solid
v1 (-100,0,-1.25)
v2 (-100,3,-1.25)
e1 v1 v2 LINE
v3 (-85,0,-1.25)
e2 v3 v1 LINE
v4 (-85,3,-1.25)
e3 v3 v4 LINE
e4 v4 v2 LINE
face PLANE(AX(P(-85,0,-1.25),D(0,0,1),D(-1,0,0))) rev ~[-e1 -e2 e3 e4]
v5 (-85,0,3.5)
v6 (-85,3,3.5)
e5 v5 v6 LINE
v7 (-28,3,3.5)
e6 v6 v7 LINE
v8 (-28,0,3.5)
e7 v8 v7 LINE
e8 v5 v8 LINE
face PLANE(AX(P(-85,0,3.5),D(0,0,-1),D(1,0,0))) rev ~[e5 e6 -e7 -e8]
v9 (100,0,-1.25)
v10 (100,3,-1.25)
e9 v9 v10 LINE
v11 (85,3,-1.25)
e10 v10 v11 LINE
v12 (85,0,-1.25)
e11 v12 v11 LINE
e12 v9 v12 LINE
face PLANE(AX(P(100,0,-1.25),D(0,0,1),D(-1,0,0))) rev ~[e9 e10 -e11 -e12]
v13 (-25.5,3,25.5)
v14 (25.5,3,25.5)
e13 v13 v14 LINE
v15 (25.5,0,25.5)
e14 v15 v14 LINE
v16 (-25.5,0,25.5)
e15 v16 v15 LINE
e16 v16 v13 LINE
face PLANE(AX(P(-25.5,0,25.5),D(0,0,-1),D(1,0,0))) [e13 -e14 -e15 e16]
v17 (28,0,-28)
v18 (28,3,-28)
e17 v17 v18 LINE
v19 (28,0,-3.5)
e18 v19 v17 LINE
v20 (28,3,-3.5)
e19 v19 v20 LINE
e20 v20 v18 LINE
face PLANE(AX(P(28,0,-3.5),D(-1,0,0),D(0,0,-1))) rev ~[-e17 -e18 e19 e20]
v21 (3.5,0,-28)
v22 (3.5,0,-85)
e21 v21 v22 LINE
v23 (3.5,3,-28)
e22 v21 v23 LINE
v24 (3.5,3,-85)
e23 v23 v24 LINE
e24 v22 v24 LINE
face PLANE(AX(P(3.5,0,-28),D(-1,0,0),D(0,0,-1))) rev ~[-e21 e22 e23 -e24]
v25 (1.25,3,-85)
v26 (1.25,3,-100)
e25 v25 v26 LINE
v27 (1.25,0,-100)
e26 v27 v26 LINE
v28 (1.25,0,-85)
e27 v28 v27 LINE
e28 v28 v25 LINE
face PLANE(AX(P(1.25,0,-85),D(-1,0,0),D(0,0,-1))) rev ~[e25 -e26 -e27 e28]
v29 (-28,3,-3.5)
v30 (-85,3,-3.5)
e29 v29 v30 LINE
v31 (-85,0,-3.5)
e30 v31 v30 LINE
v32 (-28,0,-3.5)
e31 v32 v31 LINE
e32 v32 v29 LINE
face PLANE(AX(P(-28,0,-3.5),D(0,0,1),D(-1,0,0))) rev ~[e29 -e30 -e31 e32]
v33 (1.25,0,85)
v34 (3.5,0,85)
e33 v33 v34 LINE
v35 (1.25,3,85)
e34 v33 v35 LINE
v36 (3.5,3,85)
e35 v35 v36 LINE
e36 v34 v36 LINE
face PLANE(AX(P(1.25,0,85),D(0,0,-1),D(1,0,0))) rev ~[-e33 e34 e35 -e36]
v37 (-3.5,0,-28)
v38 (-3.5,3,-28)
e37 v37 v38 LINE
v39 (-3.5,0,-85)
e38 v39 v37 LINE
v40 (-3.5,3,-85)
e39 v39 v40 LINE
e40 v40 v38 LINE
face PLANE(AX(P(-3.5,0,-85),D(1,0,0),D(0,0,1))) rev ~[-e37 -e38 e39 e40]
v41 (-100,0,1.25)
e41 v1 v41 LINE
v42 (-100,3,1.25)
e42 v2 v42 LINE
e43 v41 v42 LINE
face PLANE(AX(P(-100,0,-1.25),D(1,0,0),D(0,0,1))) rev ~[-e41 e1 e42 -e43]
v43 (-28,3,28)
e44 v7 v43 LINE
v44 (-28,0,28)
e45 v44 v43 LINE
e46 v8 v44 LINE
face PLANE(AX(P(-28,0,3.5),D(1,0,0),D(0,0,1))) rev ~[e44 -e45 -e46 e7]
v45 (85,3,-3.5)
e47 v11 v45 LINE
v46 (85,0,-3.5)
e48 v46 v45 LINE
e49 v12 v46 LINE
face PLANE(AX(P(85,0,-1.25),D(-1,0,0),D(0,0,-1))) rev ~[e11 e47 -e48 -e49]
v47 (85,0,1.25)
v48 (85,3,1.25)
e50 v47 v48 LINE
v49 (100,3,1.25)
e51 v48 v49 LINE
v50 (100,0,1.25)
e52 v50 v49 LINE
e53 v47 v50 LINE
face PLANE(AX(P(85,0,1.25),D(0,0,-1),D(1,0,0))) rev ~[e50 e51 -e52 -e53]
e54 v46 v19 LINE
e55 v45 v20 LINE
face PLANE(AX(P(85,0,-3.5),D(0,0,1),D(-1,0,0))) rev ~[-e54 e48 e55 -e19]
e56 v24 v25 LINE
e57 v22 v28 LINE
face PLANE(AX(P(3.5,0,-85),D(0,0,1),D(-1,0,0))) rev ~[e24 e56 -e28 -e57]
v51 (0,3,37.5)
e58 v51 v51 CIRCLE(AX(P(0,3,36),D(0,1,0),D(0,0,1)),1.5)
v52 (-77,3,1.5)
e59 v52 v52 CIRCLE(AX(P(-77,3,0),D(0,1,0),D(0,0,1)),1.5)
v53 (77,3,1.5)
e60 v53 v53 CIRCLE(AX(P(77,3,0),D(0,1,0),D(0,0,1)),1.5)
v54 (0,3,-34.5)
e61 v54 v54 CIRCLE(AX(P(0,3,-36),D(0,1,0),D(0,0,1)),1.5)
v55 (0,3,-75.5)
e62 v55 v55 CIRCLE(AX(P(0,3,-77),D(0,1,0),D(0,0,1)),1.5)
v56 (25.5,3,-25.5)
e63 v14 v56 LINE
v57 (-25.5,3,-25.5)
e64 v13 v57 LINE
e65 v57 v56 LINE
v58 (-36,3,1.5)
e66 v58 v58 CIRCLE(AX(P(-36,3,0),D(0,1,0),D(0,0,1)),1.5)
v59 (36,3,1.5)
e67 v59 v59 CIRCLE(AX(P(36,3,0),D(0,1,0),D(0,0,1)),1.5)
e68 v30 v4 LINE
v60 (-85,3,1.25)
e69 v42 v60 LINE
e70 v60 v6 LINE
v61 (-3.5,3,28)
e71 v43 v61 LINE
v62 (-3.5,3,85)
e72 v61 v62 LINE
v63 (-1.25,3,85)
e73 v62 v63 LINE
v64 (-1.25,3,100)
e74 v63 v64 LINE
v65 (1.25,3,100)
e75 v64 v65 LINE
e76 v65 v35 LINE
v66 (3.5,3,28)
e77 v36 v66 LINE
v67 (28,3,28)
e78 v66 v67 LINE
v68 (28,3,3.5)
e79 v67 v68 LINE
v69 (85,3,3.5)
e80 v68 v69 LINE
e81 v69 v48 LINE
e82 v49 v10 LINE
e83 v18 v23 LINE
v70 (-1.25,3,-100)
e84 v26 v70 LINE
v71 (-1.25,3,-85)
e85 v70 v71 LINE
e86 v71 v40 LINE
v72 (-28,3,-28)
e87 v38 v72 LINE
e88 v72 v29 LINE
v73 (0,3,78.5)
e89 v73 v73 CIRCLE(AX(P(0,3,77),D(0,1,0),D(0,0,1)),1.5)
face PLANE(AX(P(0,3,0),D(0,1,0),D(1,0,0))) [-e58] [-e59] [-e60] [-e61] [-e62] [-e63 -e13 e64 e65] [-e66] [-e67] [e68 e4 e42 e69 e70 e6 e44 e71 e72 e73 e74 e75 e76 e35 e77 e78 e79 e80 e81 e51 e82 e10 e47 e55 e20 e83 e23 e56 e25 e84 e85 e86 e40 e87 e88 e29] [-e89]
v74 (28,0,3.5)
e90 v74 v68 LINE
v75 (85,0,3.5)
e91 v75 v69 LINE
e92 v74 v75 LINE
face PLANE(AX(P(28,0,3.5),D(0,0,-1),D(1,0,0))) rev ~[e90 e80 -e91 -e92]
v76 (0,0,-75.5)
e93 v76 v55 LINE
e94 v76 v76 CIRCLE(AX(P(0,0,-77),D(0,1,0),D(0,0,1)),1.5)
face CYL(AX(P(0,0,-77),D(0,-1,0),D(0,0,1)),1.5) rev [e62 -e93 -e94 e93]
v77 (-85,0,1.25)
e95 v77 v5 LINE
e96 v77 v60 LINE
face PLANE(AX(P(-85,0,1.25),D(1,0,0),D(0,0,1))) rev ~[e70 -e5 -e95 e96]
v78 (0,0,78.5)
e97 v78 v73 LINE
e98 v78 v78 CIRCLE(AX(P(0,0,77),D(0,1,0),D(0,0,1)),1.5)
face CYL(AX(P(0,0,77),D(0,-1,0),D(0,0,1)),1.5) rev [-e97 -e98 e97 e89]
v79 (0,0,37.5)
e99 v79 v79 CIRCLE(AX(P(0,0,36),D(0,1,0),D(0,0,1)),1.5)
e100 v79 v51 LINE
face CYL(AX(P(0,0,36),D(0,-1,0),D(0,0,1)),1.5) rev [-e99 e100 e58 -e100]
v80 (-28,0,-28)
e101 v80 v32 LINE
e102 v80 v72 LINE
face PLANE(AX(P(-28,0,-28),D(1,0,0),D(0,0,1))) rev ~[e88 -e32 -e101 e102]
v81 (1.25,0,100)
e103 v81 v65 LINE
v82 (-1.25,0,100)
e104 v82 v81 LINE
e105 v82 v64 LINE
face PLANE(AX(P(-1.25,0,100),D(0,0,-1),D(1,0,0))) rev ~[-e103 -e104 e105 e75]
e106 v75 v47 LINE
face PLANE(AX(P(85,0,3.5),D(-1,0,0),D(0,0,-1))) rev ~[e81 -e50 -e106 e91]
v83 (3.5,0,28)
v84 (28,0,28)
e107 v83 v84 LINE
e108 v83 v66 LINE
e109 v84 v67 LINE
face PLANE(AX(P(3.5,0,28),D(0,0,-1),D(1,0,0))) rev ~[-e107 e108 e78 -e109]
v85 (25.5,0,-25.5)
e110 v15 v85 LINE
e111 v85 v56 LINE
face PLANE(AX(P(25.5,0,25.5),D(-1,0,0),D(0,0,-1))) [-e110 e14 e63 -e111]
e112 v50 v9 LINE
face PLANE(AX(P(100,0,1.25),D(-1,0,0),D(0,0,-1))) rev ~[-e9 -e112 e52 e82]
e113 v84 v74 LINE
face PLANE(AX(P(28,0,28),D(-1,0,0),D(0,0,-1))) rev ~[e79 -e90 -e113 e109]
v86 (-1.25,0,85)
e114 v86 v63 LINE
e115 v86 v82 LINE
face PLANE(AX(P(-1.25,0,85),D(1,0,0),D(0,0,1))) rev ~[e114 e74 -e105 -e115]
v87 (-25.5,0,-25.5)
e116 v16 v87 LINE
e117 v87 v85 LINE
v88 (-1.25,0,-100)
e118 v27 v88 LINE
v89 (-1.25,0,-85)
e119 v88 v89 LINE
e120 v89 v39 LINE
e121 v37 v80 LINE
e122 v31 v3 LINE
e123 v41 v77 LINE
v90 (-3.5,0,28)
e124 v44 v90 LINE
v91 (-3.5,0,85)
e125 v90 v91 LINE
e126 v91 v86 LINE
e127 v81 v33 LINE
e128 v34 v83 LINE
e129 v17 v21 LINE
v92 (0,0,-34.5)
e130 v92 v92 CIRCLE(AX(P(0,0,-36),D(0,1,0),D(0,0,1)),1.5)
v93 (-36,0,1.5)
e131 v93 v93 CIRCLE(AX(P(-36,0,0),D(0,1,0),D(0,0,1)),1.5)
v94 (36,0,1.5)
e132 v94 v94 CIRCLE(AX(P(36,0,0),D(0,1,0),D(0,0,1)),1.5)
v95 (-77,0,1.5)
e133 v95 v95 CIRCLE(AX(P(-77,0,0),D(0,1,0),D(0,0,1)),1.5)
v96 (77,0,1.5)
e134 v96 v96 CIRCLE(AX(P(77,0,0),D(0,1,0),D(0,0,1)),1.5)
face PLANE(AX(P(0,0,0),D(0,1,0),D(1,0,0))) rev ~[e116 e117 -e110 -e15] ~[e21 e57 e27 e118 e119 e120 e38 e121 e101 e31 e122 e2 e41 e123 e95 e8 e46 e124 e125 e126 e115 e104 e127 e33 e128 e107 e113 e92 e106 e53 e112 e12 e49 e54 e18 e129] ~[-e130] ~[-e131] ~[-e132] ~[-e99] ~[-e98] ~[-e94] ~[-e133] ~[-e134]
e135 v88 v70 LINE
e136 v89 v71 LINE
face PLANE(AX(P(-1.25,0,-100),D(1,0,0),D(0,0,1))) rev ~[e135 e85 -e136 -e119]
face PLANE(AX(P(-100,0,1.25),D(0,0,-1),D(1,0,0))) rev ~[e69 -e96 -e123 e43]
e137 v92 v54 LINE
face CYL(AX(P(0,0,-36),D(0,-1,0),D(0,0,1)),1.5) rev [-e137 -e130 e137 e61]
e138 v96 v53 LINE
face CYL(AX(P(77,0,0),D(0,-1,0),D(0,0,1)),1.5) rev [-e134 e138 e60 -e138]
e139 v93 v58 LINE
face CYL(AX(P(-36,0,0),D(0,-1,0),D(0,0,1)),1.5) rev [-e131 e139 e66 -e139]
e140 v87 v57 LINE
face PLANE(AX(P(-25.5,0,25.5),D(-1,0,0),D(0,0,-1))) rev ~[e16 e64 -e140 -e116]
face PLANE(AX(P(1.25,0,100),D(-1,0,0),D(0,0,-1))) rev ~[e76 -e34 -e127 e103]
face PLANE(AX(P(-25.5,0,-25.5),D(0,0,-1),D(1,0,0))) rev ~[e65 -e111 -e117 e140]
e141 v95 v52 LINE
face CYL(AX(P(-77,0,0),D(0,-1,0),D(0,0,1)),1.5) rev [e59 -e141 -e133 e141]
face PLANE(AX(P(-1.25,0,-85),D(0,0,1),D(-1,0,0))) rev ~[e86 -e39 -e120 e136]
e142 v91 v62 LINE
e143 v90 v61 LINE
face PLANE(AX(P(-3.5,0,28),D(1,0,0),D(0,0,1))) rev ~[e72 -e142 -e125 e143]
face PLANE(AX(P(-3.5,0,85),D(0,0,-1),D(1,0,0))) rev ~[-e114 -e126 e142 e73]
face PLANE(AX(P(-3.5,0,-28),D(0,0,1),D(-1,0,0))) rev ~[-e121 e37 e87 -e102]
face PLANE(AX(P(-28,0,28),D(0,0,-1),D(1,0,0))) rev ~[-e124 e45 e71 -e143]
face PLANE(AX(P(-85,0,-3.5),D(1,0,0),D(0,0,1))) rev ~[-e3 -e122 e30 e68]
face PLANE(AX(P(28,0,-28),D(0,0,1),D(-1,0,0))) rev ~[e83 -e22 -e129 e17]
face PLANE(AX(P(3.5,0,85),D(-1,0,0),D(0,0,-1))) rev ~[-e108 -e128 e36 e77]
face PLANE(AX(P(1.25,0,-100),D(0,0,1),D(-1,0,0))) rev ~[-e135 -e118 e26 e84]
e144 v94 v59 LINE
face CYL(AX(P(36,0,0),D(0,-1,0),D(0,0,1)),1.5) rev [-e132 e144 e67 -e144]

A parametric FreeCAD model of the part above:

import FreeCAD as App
import Part
import Sketcher

V = App.Vector
Q = App.Units.Quantity

doc = App.newDocument("Part")
body = doc.addObject("PartDesign::Body", "Body")

# Sketch on XZ plane
sketch1 = body.newObject("Sketcher::SketchObject", "Sketch")
sketch1.AttachmentSupport = (doc.getObject("XZ_Plane"), [""])
sketch1.MapMode = "FlatFace"
sketch1.addGeometry([
    Part.LineSegment(V(85, -1.2, 0), V(85, -3.5, 0)),  # 0
    Part.LineSegment(V(85, -3.5, 0), V(28, -3.5, 0)),  # 1
    Part.LineSegment(V(28, -3.5, 0), V(28, -28, 0)),  # 2
    Part.LineSegment(V(28, -28, 0), V(3.5, -28, 0)),  # 3
    Part.LineSegment(V(3.5, -28, 0), V(3.5, -85, 0)),  # 4
    Part.LineSegment(V(3.5, -85, 0), V(1.2, -85, 0)),  # 5
    Part.LineSegment(V(1.2, -85, 0), V(1.2, -100, 0)),  # 6
    Part.LineSegment(V(1.2, -100, 0), V(-1.2, -100, 0)),  # 7
    Part.LineSegment(V(-1.2, -100, 0), V(-1.2, -85, 0)),  # 8
    Part.LineSegment(V(-1.2, -85, 0), V(-3.5, -85, 0)),  # 9
    Part.LineSegment(V(-3.5, -85, 0), V(-3.5, -28, 0)),  # 10
    Part.LineSegment(V(-3.5, -28, 0), V(-28, -28, 0)),  # 11
    Part.LineSegment(V(-28, -28, 0), V(-28, -3.5, 0)),  # 12
    Part.LineSegment(V(-28, -3.5, 0), V(-85, -3.5, 0)),  # 13
    Part.LineSegment(V(-85, -3.5, 0), V(-85, -1.2, 0)),  # 14
    Part.LineSegment(V(-85, -1.2, 0), V(-100, -1.2, 0)),  # 15
    Part.LineSegment(V(-100, -1.2, 0), V(-100, 1.2, 0)),  # 16
    Part.LineSegment(V(-100, 1.2, 0), V(-85, 1.2, 0)),  # 17
    Part.LineSegment(V(-85, 1.2, 0), V(-85, 3.5, 0)),  # 18
    Part.LineSegment(V(-85, 3.5, 0), V(-28, 3.5, 0)),  # 19
    Part.LineSegment(V(-28, 3.5, 0), V(-28, 28, 0)),  # 20
    Part.LineSegment(V(-28, 28, 0), V(-3.5, 28, 0)),  # 21
    Part.LineSegment(V(-3.5, 28, 0), V(-3.5, 85, 0)),  # 22
    Part.LineSegment(V(-3.5, 85, 0), V(-1.2, 85, 0)),  # 23
    Part.LineSegment(V(-1.2, 85, 0), V(-1.2, 100, 0)),  # 24
    Part.LineSegment(V(-1.2, 100, 0), V(1.2, 100, 0)),  # 25
    Part.LineSegment(V(1.2, 100, 0), V(1.2, 85, 0)),  # 26
    Part.LineSegment(V(1.2, 85, 0), V(3.5, 85, 0)),  # 27
    Part.LineSegment(V(3.5, 85, 0), V(3.5, 28, 0)),  # 28
    Part.LineSegment(V(3.5, 28, 0), V(28, 28, 0)),  # 29
    Part.LineSegment(V(28, 28, 0), V(28, 3.5, 0)),  # 30
    Part.LineSegment(V(28, 3.5, 0), V(85, 3.5, 0)),  # 31
    Part.LineSegment(V(85, 3.5, 0), V(85, 1.2, 0)),  # 32
    Part.LineSegment(V(85, 1.2, 0), V(100, 1.2, 0)),  # 33
    Part.LineSegment(V(100, 1.2, 0), V(100, -1.2, 0)),  # 34
    Part.LineSegment(V(100, -1.2, 0), V(85, -1.2, 0)),  # 35
    Part.Circle(V(0, 77, 0), V(0, 0, 1), 1.5),  # 36
    Part.Circle(V(0, 36, 0), V(0, 0, 1), 1.5),  # 37
    Part.Circle(V(-77, 0, 0), V(0, 0, 1), 1.5),  # 38
    Part.Circle(V(-36, 0, 0), V(0, 0, 1), 1.5),  # 39
    Part.LineSegment(V(25.5, 25.5, 0), V(-25.5, 25.5, 0)),  # 40
    Part.LineSegment(V(-25.5, 25.5, 0), V(-25.5, -25.5, 0)),  # 41
    Part.LineSegment(V(-25.5, -25.5, 0), V(25.5, -25.5, 0)),  # 42
    Part.LineSegment(V(25.5, -25.5, 0), V(25.5, 25.5, 0)),  # 43
    Part.Circle(V(36, 0, 0), V(0, 0, 1), 1.5),  # 44
    Part.Circle(V(0, -36, 0), V(0, 0, 1), 1.5),  # 45
    Part.Circle(V(77, 0, 0), V(0, 0, 1), 1.5),  # 46
    Part.Circle(V(0, -77, 0), V(0, 0, 1), 1.5),  # 47
], False)
sketch1.addConstraint([
    Sketcher.Constraint("Coincident", 0, 2, 1, 1),
    Sketcher.Constraint("Coincident", 1, 2, 2, 1),
    Sketcher.Constraint("Coincident", 2, 2, 3, 1),
    Sketcher.Constraint("Coincident", 3, 2, 4, 1),
    Sketcher.Constraint("Coincident", 4, 2, 5, 1),
    Sketcher.Constraint("Coincident", 5, 2, 6, 1),
    Sketcher.Constraint("Coincident", 6, 2, 7, 1),
    Sketcher.Constraint("Coincident", 7, 2, 8, 1),
    Sketcher.Constraint("Coincident", 8, 2, 9, 1),
    Sketcher.Constraint("Coincident", 9, 2, 10, 1),
    Sketcher.Constraint("Coincident", 10, 2, 11, 1),
    Sketcher.Constraint("Coincident", 11, 2, 12, 1),
    Sketcher.Constraint("Coincident", 12, 2, 13, 1),
    Sketcher.Constraint("Coincident", 13, 2, 14, 1),
    Sketcher.Constraint("Coincident", 14, 2, 15, 1),
    Sketcher.Constraint("Coincident", 15, 2, 16, 1),
    Sketcher.Constraint("Coincident", 16, 2, 17, 1),
    Sketcher.Constraint("Coincident", 17, 2, 18, 1),
    Sketcher.Constraint("Coincident", 18, 2, 19, 1),
    Sketcher.Constraint("Coincident", 19, 2, 20, 1),
    Sketcher.Constraint("Coincident", 20, 2, 21, 1),
    Sketcher.Constraint("Coincident", 21, 2, 22, 1),
    Sketcher.Constraint("Coincident", 22, 2, 23, 1),
    Sketcher.Constraint("Coincident", 23, 2, 24, 1),
    Sketcher.Constraint("Coincident", 24, 2, 25, 1),
    Sketcher.Constraint("Coincident", 25, 2, 26, 1),
    Sketcher.Constraint("Coincident", 26, 2, 27, 1),
    Sketcher.Constraint("Coincident", 27, 2, 28, 1),
    Sketcher.Constraint("Coincident", 28, 2, 29, 1),
    Sketcher.Constraint("Coincident", 29, 2, 30, 1),
    Sketcher.Constraint("Coincident", 30, 2, 31, 1),
    Sketcher.Constraint("Coincident", 31, 2, 32, 1),
    Sketcher.Constraint("Coincident", 32, 2, 33, 1),
    Sketcher.Constraint("Coincident", 33, 2, 34, 1),
    Sketcher.Constraint("Coincident", 34, 2, 35, 1),
    Sketcher.Constraint("Coincident", 35, 2, 0, 1),
    Sketcher.Constraint("Coincident", 40, 2, 41, 1),
    Sketcher.Constraint("Coincident", 41, 2, 42, 1),
    Sketcher.Constraint("Coincident", 42, 2, 43, 1),
    Sketcher.Constraint("Coincident", 43, 2, 40, 1),
    Sketcher.Constraint("Vertical", 0),
    Sketcher.Constraint("Horizontal", 1),
    Sketcher.Constraint("Vertical", 2),
    Sketcher.Constraint("Horizontal", 3),
    Sketcher.Constraint("Vertical", 4),
    Sketcher.Constraint("Horizontal", 5),
    Sketcher.Constraint("Vertical", 6),
    Sketcher.Constraint("Horizontal", 7),
    Sketcher.Constraint("Vertical", 8),
    Sketcher.Constraint("Horizontal", 9),
    Sketcher.Constraint("Vertical", 10),
    Sketcher.Constraint("Horizontal", 11),
    Sketcher.Constraint("Vertical", 12),
    Sketcher.Constraint("Horizontal", 13),
    Sketcher.Constraint("Vertical", 14),
    Sketcher.Constraint("Horizontal", 15),
    Sketcher.Constraint("Vertical", 16),
    Sketcher.Constraint("Horizontal", 17),
    Sketcher.Constraint("Vertical", 18),
    Sketcher.Constraint("Horizontal", 19),
    Sketcher.Constraint("Vertical", 20),
    Sketcher.Constraint("Horizontal", 21),
    Sketcher.Constraint("Vertical", 22),
    Sketcher.Constraint("Horizontal", 23),
    Sketcher.Constraint("Vertical", 24),
    Sketcher.Constraint("Horizontal", 25),
    Sketcher.Constraint("Vertical", 26),
    Sketcher.Constraint("Horizontal", 27),
    Sketcher.Constraint("Vertical", 28),
    Sketcher.Constraint("Horizontal", 29),
    Sketcher.Constraint("Vertical", 30),
    Sketcher.Constraint("Horizontal", 31),
    Sketcher.Constraint("Vertical", 32),
    Sketcher.Constraint("Horizontal", 33),
    Sketcher.Constraint("Vertical", 34),
    Sketcher.Constraint("Horizontal", 35),
    Sketcher.Constraint("Horizontal", 40),
    Sketcher.Constraint("Vertical", 41),
    Sketcher.Constraint("Horizontal", 42),
    Sketcher.Constraint("Vertical", 43),
    Sketcher.Constraint("Equal", 36, 37),
    Sketcher.Constraint("Equal", 37, 38),
    Sketcher.Constraint("Equal", 38, 39),
    Sketcher.Constraint("Equal", 39, 44),
    Sketcher.Constraint("Equal", 44, 45),
    Sketcher.Constraint("Equal", 45, 46),
    Sketcher.Constraint("Equal", 46, 47),
    Sketcher.Constraint("Symmetric", 39, 3, 44, 3, -1, 1),
    Sketcher.Constraint("Symmetric", 37, 3, 45, 3, -1, 1),
    Sketcher.Constraint("Symmetric", 38, 3, 46, 3, -1, 1),
    Sketcher.Constraint("Symmetric", 36, 3, 47, 3, -1, 1),
    Sketcher.Constraint("Symmetric", 0, 2, 18, 2, -1, 1),
    Sketcher.Constraint("Symmetric", 2, 2, 20, 2, -1, 1),
    Sketcher.Constraint("Symmetric", 4, 2, 22, 2, -1, 1),
    Sketcher.Constraint("Symmetric", 6, 2, 24, 2, -1, 1),
    Sketcher.Constraint("Symmetric", 8, 2, 26, 2, -1, 1),
    Sketcher.Constraint("Symmetric", 10, 2, 28, 2, -1, 1),
    Sketcher.Constraint("Symmetric", 12, 2, 30, 2, -1, 1),
    Sketcher.Constraint("Symmetric", 14, 2, 32, 2, -1, 1),
    Sketcher.Constraint("Symmetric", 16, 2, 34, 2, -1, 1),
    Sketcher.Constraint("Symmetric", 40, 2, 42, 2, -1, 1),
    Sketcher.Constraint("Symmetric", 5, 2, 8, 2, -2),
    Sketcher.Constraint("Symmetric", 3, 2, 10, 2, -2),
    Sketcher.Constraint("Symmetric", 1, 2, 12, 2, -2),
    Sketcher.Constraint("Symmetric", 17, 2, 32, 2, -2),
    Sketcher.Constraint("PointOnObject", 36, 3, -2),
    Sketcher.Constraint("PointOnObject", 37, 3, -2),
    Sketcher.Constraint("PointOnObject", 38, 3, -1),
    Sketcher.Constraint("PointOnObject", 39, 3, -1),
    Sketcher.Constraint("Equal", 27, 0),
    Sketcher.Constraint("Equal", 29, 2),
    Sketcher.Constraint("Equal", 31, 4),
    Sketcher.Constraint("Equal", 35, 6),
    Sketcher.Constraint("Equal", 25, 16),
    Sketcher.Constraint("Equal", 42, 41),
    Sketcher.Constraint("Diameter", 36, Q("3 mm")),
    Sketcher.Constraint("DistanceX", 1, 2, 1, 1, Q("57 mm")),
    Sketcher.Constraint("DistanceX", 15, 2, 15, 1, Q("15 mm")),
    Sketcher.Constraint("DistanceX", 40, 2, 40, 1, Q("51 mm")),
    Sketcher.Constraint("DistanceX", 3, 2, 3, 1, Q("24.5 mm")),
    Sketcher.Constraint("DistanceX", 7, 2, 7, 1, Q("2.5 mm")),
    Sketcher.Constraint("DistanceY", -1, 1, 36, 3, Q("77 mm")),
    Sketcher.Constraint("DistanceY", -1, 1, 37, 3, Q("36 mm")),
    Sketcher.Constraint("DistanceX", 38, 3, -1, 1, Q("77 mm")),
    Sketcher.Constraint("DistanceX", 39, 3, -1, 1, Q("36 mm")),
    Sketcher.Constraint("DistanceX", -1, 1, 0, 2, Q("85 mm")),
])
pad1 = body.newObject("PartDesign::Pad", "Pad")
pad1.Profile = sketch1
pad1.Length = 3
pad1.Reversed = True

doc.recompute()
